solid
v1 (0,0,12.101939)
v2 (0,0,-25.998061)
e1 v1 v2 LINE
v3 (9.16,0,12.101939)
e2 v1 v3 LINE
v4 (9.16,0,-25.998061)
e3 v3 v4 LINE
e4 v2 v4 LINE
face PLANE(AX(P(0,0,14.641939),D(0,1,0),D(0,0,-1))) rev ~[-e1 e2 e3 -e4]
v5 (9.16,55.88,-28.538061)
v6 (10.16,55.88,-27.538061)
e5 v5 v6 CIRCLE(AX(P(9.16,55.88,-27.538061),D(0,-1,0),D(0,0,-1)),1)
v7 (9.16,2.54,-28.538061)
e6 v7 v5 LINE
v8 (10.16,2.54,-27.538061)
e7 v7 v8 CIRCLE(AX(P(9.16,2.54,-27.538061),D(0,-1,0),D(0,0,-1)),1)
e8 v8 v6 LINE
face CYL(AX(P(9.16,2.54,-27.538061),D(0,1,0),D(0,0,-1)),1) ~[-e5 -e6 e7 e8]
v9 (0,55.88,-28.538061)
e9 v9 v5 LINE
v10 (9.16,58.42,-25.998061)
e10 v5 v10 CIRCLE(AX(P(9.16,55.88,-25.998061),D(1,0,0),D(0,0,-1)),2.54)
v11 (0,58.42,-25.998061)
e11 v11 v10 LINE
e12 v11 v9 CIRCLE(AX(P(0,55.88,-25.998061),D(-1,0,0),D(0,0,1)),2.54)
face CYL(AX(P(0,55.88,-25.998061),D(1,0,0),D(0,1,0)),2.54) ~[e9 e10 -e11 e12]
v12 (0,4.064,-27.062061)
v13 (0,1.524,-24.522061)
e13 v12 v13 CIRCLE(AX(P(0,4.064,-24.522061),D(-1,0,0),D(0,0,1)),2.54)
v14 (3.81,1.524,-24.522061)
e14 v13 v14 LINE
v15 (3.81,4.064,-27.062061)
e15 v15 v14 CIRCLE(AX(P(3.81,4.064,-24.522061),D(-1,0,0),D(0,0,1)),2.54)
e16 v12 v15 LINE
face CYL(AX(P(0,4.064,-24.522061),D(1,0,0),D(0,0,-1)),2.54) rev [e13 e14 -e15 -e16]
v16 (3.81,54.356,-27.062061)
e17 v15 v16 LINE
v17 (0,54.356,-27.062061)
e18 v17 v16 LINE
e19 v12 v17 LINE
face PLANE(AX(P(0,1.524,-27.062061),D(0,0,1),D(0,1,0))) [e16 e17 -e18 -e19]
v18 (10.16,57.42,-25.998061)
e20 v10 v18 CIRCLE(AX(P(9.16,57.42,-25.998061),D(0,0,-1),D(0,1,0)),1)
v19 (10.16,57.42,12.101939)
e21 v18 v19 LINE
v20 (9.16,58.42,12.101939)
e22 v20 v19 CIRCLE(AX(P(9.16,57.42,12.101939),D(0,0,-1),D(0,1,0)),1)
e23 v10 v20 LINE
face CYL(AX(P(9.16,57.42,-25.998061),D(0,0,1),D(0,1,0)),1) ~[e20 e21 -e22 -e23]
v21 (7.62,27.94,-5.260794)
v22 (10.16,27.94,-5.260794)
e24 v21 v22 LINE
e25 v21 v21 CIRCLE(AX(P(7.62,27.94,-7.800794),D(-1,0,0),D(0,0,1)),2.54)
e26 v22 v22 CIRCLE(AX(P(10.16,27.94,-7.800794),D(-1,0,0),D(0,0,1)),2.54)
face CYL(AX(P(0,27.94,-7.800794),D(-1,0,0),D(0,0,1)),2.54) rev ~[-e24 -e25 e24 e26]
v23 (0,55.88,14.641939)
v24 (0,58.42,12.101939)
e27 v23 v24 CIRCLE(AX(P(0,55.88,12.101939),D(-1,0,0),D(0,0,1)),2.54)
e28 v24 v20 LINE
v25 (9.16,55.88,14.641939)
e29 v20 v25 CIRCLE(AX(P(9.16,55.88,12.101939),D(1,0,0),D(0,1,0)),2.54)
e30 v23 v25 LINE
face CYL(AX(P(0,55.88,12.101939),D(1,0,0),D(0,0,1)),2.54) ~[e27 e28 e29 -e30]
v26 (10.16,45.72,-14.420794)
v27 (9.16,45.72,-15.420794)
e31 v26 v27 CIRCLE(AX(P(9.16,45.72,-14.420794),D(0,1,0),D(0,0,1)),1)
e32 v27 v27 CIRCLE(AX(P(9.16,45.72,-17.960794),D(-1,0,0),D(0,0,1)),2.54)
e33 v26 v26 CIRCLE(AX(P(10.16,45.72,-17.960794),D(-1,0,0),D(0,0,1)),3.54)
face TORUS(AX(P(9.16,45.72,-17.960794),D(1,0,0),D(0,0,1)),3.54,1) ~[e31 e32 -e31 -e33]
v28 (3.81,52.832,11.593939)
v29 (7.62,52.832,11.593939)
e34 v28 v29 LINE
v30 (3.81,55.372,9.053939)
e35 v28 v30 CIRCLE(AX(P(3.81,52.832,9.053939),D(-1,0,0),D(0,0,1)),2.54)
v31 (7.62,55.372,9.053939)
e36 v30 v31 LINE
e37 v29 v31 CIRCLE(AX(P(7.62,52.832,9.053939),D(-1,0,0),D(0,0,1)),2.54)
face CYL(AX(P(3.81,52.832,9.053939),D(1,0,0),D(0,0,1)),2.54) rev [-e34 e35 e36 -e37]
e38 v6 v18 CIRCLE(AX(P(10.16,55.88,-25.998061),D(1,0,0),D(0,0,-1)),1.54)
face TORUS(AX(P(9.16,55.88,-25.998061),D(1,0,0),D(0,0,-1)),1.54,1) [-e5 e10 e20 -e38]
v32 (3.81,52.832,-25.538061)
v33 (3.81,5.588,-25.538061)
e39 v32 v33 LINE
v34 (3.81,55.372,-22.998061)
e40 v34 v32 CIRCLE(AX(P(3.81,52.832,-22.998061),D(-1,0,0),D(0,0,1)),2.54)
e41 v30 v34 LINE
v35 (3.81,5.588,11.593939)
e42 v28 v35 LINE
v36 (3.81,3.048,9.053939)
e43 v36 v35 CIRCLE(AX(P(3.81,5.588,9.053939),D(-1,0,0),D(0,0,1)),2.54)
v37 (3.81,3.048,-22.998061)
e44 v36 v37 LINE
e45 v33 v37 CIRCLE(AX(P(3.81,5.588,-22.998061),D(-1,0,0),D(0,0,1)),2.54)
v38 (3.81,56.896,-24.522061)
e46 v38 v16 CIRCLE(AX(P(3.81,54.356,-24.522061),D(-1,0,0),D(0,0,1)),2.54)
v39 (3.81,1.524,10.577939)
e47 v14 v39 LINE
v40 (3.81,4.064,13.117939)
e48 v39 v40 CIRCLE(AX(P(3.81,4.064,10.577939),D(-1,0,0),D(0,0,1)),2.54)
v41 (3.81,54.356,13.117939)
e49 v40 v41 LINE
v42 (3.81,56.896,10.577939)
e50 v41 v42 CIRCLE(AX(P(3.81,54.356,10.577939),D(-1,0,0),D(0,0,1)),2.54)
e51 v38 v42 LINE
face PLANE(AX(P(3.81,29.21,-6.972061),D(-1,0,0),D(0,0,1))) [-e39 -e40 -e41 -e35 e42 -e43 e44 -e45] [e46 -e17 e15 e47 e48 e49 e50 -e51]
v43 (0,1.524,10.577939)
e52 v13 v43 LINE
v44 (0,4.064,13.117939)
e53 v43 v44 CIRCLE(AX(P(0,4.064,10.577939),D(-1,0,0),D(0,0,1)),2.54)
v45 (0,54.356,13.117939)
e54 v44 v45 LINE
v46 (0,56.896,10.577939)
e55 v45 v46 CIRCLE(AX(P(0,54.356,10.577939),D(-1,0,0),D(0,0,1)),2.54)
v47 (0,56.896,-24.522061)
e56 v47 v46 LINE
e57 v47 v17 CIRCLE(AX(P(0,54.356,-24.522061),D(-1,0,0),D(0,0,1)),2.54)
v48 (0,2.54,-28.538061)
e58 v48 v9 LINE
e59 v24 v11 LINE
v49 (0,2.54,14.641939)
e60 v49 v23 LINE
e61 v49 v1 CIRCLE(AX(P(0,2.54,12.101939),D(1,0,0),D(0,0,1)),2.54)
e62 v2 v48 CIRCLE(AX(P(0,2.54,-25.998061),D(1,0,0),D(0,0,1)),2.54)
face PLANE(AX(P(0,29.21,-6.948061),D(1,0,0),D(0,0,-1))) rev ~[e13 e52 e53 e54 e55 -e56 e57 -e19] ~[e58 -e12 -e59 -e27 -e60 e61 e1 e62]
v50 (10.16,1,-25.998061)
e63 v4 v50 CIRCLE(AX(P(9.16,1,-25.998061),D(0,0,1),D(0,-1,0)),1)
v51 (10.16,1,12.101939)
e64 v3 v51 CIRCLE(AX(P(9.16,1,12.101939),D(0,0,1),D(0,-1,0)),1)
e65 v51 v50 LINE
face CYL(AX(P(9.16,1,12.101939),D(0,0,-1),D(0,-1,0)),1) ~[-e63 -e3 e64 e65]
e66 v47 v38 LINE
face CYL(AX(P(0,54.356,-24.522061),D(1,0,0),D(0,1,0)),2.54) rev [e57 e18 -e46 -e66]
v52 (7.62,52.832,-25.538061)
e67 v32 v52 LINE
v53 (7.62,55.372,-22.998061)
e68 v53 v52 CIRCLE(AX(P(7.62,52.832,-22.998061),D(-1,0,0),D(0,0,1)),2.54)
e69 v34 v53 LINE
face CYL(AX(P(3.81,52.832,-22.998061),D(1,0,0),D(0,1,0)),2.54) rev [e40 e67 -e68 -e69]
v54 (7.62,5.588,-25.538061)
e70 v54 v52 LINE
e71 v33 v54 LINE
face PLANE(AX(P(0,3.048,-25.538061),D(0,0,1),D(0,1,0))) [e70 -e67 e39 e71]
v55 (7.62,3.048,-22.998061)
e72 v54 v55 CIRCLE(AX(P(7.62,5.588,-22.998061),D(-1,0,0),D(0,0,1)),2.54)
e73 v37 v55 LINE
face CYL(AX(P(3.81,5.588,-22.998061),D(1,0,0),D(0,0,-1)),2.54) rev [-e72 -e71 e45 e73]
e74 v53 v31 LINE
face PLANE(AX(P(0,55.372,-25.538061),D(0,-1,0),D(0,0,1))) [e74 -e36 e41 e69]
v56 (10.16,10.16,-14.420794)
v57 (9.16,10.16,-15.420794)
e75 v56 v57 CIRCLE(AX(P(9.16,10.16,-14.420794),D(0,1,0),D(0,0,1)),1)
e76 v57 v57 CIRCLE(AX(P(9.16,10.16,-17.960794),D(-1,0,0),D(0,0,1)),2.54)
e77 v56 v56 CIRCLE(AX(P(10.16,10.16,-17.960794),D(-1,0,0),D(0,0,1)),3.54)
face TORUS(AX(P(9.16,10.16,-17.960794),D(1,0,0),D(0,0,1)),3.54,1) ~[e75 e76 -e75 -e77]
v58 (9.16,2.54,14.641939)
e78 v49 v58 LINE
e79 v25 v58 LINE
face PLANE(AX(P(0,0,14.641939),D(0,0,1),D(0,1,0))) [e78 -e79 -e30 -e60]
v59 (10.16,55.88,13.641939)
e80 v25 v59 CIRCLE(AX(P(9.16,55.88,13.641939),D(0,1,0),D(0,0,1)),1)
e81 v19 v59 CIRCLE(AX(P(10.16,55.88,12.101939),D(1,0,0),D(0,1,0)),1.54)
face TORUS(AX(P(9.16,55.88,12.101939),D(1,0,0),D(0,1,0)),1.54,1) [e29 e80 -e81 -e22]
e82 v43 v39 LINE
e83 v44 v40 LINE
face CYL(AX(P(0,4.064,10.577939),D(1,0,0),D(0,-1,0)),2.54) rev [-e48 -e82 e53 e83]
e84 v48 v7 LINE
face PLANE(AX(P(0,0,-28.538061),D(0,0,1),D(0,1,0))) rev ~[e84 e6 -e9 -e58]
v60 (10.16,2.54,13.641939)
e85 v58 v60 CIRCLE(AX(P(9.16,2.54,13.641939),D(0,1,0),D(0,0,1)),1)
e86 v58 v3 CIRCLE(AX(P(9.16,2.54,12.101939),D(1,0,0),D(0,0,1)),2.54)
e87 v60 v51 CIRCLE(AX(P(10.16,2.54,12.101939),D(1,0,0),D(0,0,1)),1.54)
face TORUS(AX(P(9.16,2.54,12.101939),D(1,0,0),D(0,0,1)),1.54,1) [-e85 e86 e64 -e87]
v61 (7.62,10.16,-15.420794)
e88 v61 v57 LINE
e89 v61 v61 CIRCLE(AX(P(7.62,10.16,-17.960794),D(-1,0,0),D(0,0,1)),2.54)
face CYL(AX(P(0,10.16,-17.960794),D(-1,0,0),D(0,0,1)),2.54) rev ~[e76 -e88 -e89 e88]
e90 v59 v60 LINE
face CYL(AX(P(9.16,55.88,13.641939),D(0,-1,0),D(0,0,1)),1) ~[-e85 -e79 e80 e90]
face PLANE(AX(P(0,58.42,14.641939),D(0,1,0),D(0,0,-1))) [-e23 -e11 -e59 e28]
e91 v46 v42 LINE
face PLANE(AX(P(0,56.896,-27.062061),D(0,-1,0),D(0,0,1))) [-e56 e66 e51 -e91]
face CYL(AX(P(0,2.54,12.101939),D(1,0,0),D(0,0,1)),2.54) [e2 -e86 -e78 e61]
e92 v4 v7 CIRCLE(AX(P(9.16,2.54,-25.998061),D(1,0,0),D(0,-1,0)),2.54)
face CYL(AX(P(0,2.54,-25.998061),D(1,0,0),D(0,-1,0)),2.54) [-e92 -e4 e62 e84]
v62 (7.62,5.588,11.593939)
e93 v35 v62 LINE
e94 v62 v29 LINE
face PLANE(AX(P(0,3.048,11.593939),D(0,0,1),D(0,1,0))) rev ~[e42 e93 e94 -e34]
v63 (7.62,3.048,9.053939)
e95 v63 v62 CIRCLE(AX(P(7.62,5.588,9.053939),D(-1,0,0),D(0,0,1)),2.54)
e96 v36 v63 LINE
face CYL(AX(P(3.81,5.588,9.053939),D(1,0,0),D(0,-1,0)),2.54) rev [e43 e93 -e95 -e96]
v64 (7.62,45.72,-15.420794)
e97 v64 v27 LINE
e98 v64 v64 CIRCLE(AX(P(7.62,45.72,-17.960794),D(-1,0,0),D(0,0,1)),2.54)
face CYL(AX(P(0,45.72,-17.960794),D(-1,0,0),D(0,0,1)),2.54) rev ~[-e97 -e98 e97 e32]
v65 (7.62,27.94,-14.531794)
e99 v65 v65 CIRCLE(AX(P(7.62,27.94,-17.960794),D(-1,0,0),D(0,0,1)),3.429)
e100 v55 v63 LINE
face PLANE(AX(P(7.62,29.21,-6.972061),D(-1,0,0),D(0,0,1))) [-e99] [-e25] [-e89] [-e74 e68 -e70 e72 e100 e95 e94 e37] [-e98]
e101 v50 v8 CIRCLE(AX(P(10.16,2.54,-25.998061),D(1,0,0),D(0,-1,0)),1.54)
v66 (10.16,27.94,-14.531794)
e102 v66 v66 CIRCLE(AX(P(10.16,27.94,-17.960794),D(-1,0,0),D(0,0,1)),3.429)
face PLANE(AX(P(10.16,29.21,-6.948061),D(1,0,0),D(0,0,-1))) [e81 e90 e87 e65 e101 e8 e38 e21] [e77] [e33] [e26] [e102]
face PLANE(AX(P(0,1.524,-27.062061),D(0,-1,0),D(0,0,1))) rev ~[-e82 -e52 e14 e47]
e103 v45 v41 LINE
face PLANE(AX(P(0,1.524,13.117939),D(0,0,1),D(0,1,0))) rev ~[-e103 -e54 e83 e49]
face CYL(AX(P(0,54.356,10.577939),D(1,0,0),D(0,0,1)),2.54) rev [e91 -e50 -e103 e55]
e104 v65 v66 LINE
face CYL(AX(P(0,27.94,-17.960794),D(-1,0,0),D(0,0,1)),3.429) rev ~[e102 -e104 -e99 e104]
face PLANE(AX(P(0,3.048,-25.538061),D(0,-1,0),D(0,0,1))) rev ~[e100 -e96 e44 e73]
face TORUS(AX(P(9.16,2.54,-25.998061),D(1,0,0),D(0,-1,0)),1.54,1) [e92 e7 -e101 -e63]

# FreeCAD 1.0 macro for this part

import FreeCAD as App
import Part
import Sketcher

V = App.Vector
Q = App.Units.Quantity


def edges_at(feature, points):
    """Names of the edges that pass closest to the given points."""
    edges = feature.Shape.Edges
    near = lambda p: min(range(len(edges)), key=lambda i: edges[i].distToShape(Part.Vertex(*p))[0])
    return sorted({f"Edge{near(p) + 1}" for p in points})

doc = App.newDocument("Part")
params = doc.addObject("Spreadsheet::Sheet", "Params")
for row, (alias, value) in enumerate([
    ("sketch1_width", "2.3 in"),
    ("sketch1_height", "1.7 in"),
    ("pad1_length", "0.4 in"),
    ("sketch2_diameter", "0.2 in"),
    ("sketch2_diameter2", "0.27 in"),
    ("sketch3_width", "2.06 in"),
    ("pocket2_length", "0.3 in"),
    ("sketch4_width", "2.18 in"),
    ("pocket3_length", "0.15 in"),
    ("fillet_radius", "0.1 in"),
    ("fillet2_radius", "0.1 in"),
    ("fillet3_radius", "0.1 in"),
    ("fillet4_radius", "0.1 in"),
    ("fillet5_radius", "0.1 in"),
    ("fillet6_radius", "1 mm"),
    ("fillet7_radius", "1 mm"),
    ("fillet8_radius", "1 mm"),
], start=1):
    params.set(f"A{row}", alias)
    params.set(f"B{row}", "=" + value)
    params.setAlias(f"B{row}", alias)

body = doc.addObject("PartDesign::Body", "Body")

# Sketch on YZ plane
sketch1 = doc.addObject("Sketcher::SketchObject", "Sketch")
body.addObject(sketch1)
sketch1.AttachmentSupport = (doc.YZ_Plane, [""])
sketch1.MapMode = "FlatFace"
sketch1.addGeometry([
    Part.LineSegment(V(58.42, 14.641939, 0), V(0, 14.641939, 0)),
    Part.LineSegment(V(0, 14.641939, 0), V(0, -28.538061, 0)),
    Part.LineSegment(V(0, -28.538061, 0), V(58.42, -28.538061, 0)),
    Part.LineSegment(V(58.42, -28.538061, 0), V(58.42, 14.641939, 0)),
], False)
sketch1.addConstraint([
    Sketcher.Constraint("Coincident", 0, 2, 1, 1),
    Sketcher.Constraint("Coincident", 1, 2, 2, 1),
    Sketcher.Constraint("Coincident", 2, 2, 3, 1),
    Sketcher.Constraint("Coincident", 3, 2, 0, 1),
    Sketcher.Constraint("Horizontal", 0),
    Sketcher.Constraint("Vertical", 1),
    Sketcher.Constraint("Horizontal", 2),
    Sketcher.Constraint("Vertical", 3),
    Sketcher.Constraint("PointOnObject", 0, 2, -2),
    Sketcher.Constraint("DistanceX", 0, 2, 0, 1, Q("2.3 in")),
    Sketcher.Constraint("DistanceY", 1, 2, 1, 1, Q("1.7 in")),
    Sketcher.Constraint("DistanceY", -1, 1, 0, 2, Q("14.641939 mm")),
])
sketch1.setExpression("Constraints[9]", "Params.sketch1_width")
sketch1.setExpression("Constraints[10]", "Params.sketch1_height")
pad1 = doc.addObject("PartDesign::Pad", "Pad")
body.addObject(pad1)
pad1.Profile = sketch1
pad1.setExpression("Length", "Params.pad1_length")

# Sketch on YZ plane
sketch2 = doc.addObject("Sketcher::SketchObject", "Sketch001")
body.addObject(sketch2)
sketch2.AttachmentSupport = (doc.YZ_Plane, [""])
sketch2.MapMode = "FlatFace"
sketch2.addGeometry([
    Part.Circle(V(10.16, -17.960794, 0), V(0, 0, 1), 2.54),
    Part.Circle(V(45.72, -17.960794, 0), V(0, 0, 1), 2.54),
    Part.Circle(V(27.94, -17.960794, 0), V(0, 0, 1), 3.429),
    Part.Circle(V(27.94, -7.800794, 0), V(0, 0, 1), 2.54),
], False)
sketch2.addConstraint([
    Sketcher.Constraint("Equal", 0, 1),
    Sketcher.Constraint("Equal", 1, 3),
    Sketcher.Constraint("Horizontal", 0, 3, 1, 3),
    Sketcher.Constraint("Horizontal", 1, 3, 2, 3),
    Sketcher.Constraint("Vertical", 2, 3, 3, 3),
    Sketcher.Constraint("Diameter", 0, Q("0.2 in")),
    Sketcher.Constraint("Diameter", 2, Q("0.27 in")),
    Sketcher.Constraint("DistanceX", -1, 1, 0, 3, Q("0.4 in")),
    Sketcher.Constraint("DistanceX", -1, 1, 1, 3, Q("1.8 in")),
    Sketcher.Constraint("DistanceX", -1, 1, 2, 3, Q("1.1 in")),
    Sketcher.Constraint("DistanceY", 2, 3, 3, 3, Q("0.4 in")),
    Sketcher.Constraint("DistanceY", 0, 3, -1, 1, Q("17.960794 mm")),
])
sketch2.setExpression("Constraints[5]", "Params.sketch2_diameter")
sketch2.setExpression("Constraints[6]", "Params.sketch2_diameter2")
pocket1 = doc.addObject("PartDesign::Pocket", "Pocket")
body.addObject(pocket1)
pocket1.Profile = sketch2
pocket1.Type = "ThroughAll"
pocket1.Reversed = True

# Sketch on YZ plane
sketch3 = doc.addObject("Sketcher::SketchObject", "Sketch002")
body.addObject(sketch3)
sketch3.AttachmentSupport = (doc.YZ_Plane, [""])
sketch3.MapMode = "FlatFace"
sketch3.addGeometry([
    Part.LineSegment(V(55.372, -25.538061, 0), V(3.048, -25.538061, 0)),
    Part.LineSegment(V(3.048, -25.538061, 0), V(3.048, 11.593939, 0)),
    Part.LineSegment(V(3.048, 11.593939, 0), V(55.372, 11.593939, 0)),
    Part.LineSegment(V(55.372, 11.593939, 0), V(55.372, -25.538061, 0)),
], False)
sketch3.addConstraint([
    Sketcher.Constraint("Coincident", 0, 2, 1, 1),
    Sketcher.Constraint("Coincident", 1, 2, 2, 1),
    Sketcher.Constraint("Coincident", 2, 2, 3, 1),
    Sketcher.Constraint("Coincident", 3, 2, 0, 1),
    Sketcher.Constraint("Horizontal", 0),
    Sketcher.Constraint("Vertical", 1),
    Sketcher.Constraint("Horizontal", 2),
    Sketcher.Constraint("Vertical", 3),
    Sketcher.Constraint("DistanceX", 0, 2, 0, 1, Q("2.06 in")),
    Sketcher.Constraint("DistanceX", -1, 1, 0, 2, Q("0.12 in")),
    Sketcher.Constraint("DistanceY", 1, 1, 1, 2, Q("37.132 mm")),
    Sketcher.Constraint("DistanceY", 0, 2, -1, 1, Q("25.538061 mm")),
])
sketch3.setExpression("Constraints[8]", "Params.sketch3_width")
pocket2 = doc.addObject("PartDesign::Pocket", "Pocket001")
body.addObject(pocket2)
pocket2.Profile = sketch3
pocket2.setExpression("Length", "Params.pocket2_length")
pocket2.Reversed = True

# Sketch on YZ plane
sketch4 = doc.addObject("Sketcher::SketchObject", "Sketch003")
body.addObject(sketch4)
sketch4.AttachmentSupport = (doc.YZ_Plane, [""])
sketch4.MapMode = "FlatFace"
sketch4.addGeometry([
    Part.LineSegment(V(56.896, -27.062061, 0), V(1.524, -27.062061, 0)),
    Part.LineSegment(V(1.524, -27.062061, 0), V(1.524, 13.117939, 0)),
    Part.LineSegment(V(1.524, 13.117939, 0), V(56.896, 13.117939, 0)),
    Part.LineSegment(V(56.896, 13.117939, 0), V(56.896, -27.062061, 0)),
], False)
sketch4.addConstraint([
    Sketcher.Constraint("Coincident", 0, 2, 1, 1),
    Sketcher.Constraint("Coincident", 1, 2, 2, 1),
    Sketcher.Constraint("Coincident", 2, 2, 3, 1),
    Sketcher.Constraint("Coincident", 3, 2, 0, 1),
    Sketcher.Constraint("Horizontal", 0),
    Sketcher.Constraint("Vertical", 1),
    Sketcher.Constraint("Horizontal", 2),
    Sketcher.Constraint("Vertical", 3),
    Sketcher.Constraint("DistanceX", 0, 2, 0, 1, Q("2.18 in")),
    Sketcher.Constraint("DistanceX", -1, 1, 0, 2, Q("0.06 in")),
    Sketcher.Constraint("DistanceY", 1, 1, 1, 2, Q("40.18 mm")),
    Sketcher.Constraint("DistanceY", 0, 2, -1, 1, Q("27.062061 mm")),
])
sketch4.setExpression("Constraints[8]", "Params.sketch4_width")
pocket3 = doc.addObject("PartDesign::Pocket", "Pocket002")
body.addObject(pocket3)
pocket3.Profile = sketch4
pocket3.setExpression("Length", "Params.pocket3_length")
pocket3.Reversed = True
doc.recompute()

fillet = doc.addObject("PartDesign::Fillet", "Fillet")
body.addObject(fillet)
fillet.Base = (pocket3, edges_at(pocket3, [(5.715, 3.048, -25.538), (1.905, 1.524, -27.062)]))
fillet.setExpression("Radius", "Params.fillet_radius")
doc.recompute()

fillet2 = doc.addObject("PartDesign::Fillet", "Fillet001")
body.addObject(fillet2)
fillet2.Base = (fillet, edges_at(fillet, [(5.715, 3.048, 11.594), (1.905, 1.524, 13.118)]))
fillet2.setExpression("Radius", "Params.fillet2_radius")
doc.recompute()

fillet3 = doc.addObject("PartDesign::Fillet", "Fillet002")
body.addObject(fillet3)
fillet3.Base = (fillet2, edges_at(fillet2, [(5.715, 55.372, 11.594), (1.905, 56.896, 13.118)]))
fillet3.setExpression("Radius", "Params.fillet3_radius")
doc.recompute()

fillet4 = doc.addObject("PartDesign::Fillet", "Fillet003")
body.addObject(fillet4)
fillet4.Base = (fillet3, edges_at(fillet3, [(5.715, 55.372, -25.538), (1.905, 56.896, -27.062)]))
fillet4.setExpression("Radius", "Params.fillet4_radius")
doc.recompute()

fillet5 = doc.addObject("PartDesign::Fillet", "Fillet004")
body.addObject(fillet5)
fillet5.Base = (fillet4, edges_at(fillet4, [
    (5.08, 58.42, 14.642),
    (5.08, 58.42, -28.538),
    (5.08, 0, -28.538),
    (5.08, 0, 14.642),
]))
fillet5.setExpression("Radius", "Params.fillet5_radius")
doc.recompute()

fillet6 = doc.addObject("PartDesign::Fillet", "Fillet005")
body.addObject(fillet6)
fillet6.Base = (fillet5, edges_at(fillet5, [
    (10.16, 29.21, -28.538),
    (10.16, 0, -6.948),
    (10.16, 29.21, 14.642),
    (10.16, 58.42, -6.948),
    (10.16, 57.676, 13.898),
    (10.16, 57.676, -27.794),
    (10.16, 0.744, 13.898),
    (10.16, 0.744, -27.794),
]))
fillet6.setExpression("Radius", "Params.fillet6_radius")
doc.recompute()

fillet7 = doc.addObject("PartDesign::Fillet", "Fillet006")
body.addObject(fillet7)
fillet7.Base = (fillet6, edges_at(fillet6, [(10.16, 45.72, -20.501)]))
fillet7.setExpression("Radius", "Params.fillet7_radius")
doc.recompute()

fillet8 = doc.addObject("PartDesign::Fillet", "Fillet007")
body.addObject(fillet8)
fillet8.Base = (fillet7, edges_at(fillet7, [(10.16, 10.16, -20.501)]))
fillet8.setExpression("Radius", "Params.fillet8_radius")

doc.recompute()
